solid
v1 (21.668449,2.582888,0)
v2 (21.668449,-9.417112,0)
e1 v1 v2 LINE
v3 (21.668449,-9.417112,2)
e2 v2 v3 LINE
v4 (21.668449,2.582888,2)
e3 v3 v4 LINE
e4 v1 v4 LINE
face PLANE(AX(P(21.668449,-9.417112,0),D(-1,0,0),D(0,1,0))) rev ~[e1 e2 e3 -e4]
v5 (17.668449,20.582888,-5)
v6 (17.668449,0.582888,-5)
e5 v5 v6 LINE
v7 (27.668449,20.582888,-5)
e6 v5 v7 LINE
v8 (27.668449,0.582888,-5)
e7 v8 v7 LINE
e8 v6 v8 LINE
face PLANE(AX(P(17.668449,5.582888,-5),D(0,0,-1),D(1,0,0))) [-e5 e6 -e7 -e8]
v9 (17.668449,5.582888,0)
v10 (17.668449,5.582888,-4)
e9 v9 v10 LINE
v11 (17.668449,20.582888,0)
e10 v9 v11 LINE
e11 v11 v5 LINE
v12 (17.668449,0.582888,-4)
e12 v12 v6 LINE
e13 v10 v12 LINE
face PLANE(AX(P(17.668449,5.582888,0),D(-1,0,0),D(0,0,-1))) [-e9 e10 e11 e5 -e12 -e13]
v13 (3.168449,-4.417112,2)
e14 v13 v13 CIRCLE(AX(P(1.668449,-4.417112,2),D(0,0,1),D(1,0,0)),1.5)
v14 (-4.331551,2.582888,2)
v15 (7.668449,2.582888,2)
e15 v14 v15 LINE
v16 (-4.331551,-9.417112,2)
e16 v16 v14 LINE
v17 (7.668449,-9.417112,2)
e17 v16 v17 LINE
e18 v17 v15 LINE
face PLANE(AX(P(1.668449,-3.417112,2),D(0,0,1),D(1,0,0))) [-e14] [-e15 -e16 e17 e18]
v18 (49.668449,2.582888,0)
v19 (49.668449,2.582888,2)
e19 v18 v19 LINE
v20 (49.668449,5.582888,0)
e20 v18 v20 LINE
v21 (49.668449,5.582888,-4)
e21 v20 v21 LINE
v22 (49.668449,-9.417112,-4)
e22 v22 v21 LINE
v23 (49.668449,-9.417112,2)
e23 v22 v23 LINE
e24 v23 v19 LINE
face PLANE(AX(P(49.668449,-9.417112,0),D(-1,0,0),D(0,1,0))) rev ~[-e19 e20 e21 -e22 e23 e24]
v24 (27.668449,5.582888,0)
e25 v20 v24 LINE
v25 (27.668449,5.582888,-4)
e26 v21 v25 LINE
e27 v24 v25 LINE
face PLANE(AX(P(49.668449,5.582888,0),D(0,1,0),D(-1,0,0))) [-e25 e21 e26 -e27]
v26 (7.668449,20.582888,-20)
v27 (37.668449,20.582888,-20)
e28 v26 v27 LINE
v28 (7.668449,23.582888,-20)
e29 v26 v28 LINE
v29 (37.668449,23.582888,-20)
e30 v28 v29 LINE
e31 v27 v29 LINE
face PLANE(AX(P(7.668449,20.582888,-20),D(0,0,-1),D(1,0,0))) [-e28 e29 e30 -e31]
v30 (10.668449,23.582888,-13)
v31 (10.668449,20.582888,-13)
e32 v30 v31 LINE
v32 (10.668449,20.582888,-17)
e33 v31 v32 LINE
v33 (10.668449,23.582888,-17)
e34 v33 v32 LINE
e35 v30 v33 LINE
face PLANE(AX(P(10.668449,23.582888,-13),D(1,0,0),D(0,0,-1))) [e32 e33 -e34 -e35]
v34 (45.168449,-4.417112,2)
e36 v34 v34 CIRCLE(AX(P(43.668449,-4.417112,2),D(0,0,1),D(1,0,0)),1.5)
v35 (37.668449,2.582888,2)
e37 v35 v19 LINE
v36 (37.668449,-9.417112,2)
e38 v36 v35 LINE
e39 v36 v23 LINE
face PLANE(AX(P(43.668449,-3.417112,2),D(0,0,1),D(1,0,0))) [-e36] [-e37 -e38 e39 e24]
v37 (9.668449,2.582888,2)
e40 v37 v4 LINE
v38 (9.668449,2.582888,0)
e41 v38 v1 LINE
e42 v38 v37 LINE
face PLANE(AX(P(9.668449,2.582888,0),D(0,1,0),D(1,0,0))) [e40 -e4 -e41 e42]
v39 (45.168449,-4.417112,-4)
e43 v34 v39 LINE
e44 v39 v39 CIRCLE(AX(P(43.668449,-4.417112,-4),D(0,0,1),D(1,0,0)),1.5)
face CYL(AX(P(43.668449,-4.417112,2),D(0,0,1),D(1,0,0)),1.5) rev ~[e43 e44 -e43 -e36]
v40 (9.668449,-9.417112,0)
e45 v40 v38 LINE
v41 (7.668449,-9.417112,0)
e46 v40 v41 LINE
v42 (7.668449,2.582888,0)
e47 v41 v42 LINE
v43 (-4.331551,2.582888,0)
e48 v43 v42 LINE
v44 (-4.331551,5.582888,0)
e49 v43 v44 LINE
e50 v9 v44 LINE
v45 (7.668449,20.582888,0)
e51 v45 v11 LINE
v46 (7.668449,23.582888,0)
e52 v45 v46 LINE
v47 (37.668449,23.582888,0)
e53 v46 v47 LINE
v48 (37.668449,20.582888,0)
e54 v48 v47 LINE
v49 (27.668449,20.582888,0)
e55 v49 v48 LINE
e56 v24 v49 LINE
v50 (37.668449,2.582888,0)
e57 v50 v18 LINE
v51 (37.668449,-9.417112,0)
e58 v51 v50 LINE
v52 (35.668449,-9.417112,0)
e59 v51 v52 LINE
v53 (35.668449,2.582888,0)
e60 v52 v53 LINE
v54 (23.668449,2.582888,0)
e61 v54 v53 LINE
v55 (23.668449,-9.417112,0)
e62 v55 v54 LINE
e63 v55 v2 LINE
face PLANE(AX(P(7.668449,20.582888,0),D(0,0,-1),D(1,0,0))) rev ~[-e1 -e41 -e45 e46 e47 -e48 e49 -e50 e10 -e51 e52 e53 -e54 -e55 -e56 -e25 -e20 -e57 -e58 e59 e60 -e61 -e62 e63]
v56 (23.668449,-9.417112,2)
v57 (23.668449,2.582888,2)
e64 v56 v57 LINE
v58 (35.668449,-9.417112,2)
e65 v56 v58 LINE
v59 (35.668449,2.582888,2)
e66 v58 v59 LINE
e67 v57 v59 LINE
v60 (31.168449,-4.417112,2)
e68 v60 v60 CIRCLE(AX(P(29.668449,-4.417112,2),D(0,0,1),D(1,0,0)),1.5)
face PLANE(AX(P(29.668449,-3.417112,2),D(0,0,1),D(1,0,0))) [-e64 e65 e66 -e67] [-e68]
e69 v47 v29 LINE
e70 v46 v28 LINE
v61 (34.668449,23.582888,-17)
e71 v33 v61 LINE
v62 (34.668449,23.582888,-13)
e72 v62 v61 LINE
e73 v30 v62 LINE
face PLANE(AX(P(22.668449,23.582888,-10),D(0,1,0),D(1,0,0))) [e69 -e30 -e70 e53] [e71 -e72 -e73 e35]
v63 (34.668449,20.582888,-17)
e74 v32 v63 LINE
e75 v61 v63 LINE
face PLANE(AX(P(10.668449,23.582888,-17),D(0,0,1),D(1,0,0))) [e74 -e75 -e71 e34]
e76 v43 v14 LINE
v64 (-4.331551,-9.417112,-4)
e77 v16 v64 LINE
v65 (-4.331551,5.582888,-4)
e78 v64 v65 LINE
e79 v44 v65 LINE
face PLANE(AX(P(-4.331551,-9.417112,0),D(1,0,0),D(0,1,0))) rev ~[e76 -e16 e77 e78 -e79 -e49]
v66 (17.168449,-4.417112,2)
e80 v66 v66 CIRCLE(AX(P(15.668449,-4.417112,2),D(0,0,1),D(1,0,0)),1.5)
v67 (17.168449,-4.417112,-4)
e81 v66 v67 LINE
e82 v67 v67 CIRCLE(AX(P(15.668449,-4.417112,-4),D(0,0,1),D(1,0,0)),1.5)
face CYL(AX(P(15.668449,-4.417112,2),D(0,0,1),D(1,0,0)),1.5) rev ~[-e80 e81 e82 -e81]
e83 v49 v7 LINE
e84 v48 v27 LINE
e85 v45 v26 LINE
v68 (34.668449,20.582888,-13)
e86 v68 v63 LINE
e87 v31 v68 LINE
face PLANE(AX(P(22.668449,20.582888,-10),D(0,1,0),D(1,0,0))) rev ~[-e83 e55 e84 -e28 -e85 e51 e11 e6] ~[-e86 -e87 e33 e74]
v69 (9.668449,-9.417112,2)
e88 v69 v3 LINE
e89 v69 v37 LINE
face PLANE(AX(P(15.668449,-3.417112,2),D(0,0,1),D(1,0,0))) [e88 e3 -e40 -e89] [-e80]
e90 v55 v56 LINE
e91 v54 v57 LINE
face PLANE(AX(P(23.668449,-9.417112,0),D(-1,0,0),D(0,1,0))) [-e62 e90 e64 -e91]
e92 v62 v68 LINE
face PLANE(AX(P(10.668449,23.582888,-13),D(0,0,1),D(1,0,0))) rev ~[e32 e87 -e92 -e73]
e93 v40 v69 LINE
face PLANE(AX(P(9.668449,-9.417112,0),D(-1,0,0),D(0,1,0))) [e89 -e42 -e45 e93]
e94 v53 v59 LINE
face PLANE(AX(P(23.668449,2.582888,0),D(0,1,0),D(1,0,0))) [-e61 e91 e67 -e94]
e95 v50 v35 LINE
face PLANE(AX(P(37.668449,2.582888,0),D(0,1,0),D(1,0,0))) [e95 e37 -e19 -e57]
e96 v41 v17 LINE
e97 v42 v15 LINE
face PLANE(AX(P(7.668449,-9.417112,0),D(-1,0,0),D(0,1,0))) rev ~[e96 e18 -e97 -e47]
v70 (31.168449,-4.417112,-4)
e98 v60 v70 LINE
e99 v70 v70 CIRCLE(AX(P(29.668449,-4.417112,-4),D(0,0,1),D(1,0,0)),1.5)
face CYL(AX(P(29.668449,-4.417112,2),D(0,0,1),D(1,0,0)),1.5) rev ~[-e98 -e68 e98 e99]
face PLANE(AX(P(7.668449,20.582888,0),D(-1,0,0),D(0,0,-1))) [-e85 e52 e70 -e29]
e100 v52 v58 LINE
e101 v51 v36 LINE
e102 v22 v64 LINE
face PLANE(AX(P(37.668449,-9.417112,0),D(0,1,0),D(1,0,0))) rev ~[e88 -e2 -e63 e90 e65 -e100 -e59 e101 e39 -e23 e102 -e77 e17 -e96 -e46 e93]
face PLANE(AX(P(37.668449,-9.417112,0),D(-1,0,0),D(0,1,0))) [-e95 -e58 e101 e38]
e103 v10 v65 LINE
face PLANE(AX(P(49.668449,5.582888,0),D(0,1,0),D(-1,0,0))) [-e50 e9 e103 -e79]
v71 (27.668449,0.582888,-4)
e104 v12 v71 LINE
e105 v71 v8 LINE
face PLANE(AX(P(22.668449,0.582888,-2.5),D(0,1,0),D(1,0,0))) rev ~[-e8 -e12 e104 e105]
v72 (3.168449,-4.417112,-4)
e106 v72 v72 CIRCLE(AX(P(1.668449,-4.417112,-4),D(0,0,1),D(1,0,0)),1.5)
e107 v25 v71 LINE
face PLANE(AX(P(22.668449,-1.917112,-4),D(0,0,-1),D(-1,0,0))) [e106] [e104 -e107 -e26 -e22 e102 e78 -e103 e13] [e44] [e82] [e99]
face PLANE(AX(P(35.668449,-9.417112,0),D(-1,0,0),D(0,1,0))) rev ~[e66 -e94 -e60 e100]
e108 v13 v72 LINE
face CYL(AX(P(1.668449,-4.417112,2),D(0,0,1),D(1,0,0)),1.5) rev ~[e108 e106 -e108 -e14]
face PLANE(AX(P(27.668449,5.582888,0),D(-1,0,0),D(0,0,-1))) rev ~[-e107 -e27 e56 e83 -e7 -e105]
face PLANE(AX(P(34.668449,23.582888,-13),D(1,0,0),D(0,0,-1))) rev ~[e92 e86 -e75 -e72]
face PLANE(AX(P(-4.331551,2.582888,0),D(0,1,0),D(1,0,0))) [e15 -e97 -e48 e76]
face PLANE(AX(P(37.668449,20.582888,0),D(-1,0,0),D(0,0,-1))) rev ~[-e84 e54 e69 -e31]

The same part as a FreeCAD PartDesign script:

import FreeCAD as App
import Part
import Sketcher
from FreeCAD import Vector


def add_polygon(sketch, points):
    """Adds a closed chain of lines whose ends are joined by coincident constraints."""
    first, n = sketch.GeometryCount, len(points)
    for a, b in zip(points, points[1:] + points[:1]):
        sketch.addGeometry(Part.LineSegment(App.Vector(*a, 0), App.Vector(*b, 0)), False)
    for i in range(n):
        sketch.addConstraint(Sketcher.Constraint("Coincident", first + i, 2, first + (i + 1) % n, 1))

doc = App.newDocument("Part")
body = doc.addObject("PartDesign::Body", "Body")

# Sketch on XY plane
sketch1 = body.newObject("Sketcher::SketchObject", "Sketch")
sketch1.AttachmentSupport = (doc.getObject("XY_Plane"), [""])
sketch1.MapMode = "FlatFace"
add_polygon(sketch1, [(-4.331551, 2.582888), (-4.331551, -9.417112), (7.668449, -9.417112), (7.668449, 2.582888)])  # lines 0-3
sketch1.addConstraint(Sketcher.Constraint("Vertical", 0))
sketch1.addConstraint(Sketcher.Constraint("Horizontal", 1))
sketch1.addConstraint(Sketcher.Constraint("Vertical", 2))
sketch1.addConstraint(Sketcher.Constraint("Horizontal", 3))
sketch1.addConstraint(Sketcher.Constraint("Equal", 3, 0))
sketch1.addConstraint(Sketcher.Constraint("DistanceX", 1, 1, 1, 2, 12.0))
sketch1.addConstraint(Sketcher.Constraint("DistanceX", 0, 2, -1, 1, 4.331551))
sketch1.addConstraint(Sketcher.Constraint("DistanceY", 0, 2, -1, 1, 9.417112))
pad1 = body.newObject("PartDesign::Pad", "Pad")
pad1.Profile = sketch1
pad1.Length = 2

# Sketch on XY plane
sketch2 = body.newObject("Sketcher::SketchObject", "Sketch001")
sketch2.AttachmentSupport = (doc.getObject("XY_Plane"), [""])
sketch2.MapMode = "FlatFace"
add_polygon(sketch2, [(49.668449, 5.582888), (49.668449, -9.417112), (-4.331551, -9.417112), (-4.331551, 5.582888)])  # lines 0-3
sketch2.addConstraint(Sketcher.Constraint("Vertical", 0))
sketch2.addConstraint(Sketcher.Constraint("Horizontal", 1))
sketch2.addConstraint(Sketcher.Constraint("Vertical", 2))
sketch2.addConstraint(Sketcher.Constraint("Horizontal", 3))
sketch2.addConstraint(Sketcher.Constraint("DistanceX", 1, 2, 1, 1, 54.0))
sketch2.addConstraint(Sketcher.Constraint("DistanceY", 0, 2, 0, 1, 15.0))
sketch2.addConstraint(Sketcher.Constraint("DistanceX", -1, 1, 0, 2, 49.668449))
sketch2.addConstraint(Sketcher.Constraint("DistanceY", 0, 2, -1, 1, 9.417112))
pad2 = body.newObject("PartDesign::Pad", "Pad001")
pad2.Profile = sketch2
pad2.Length = 4
pad2.Reversed = True

# Sketch on XY plane
sketch3 = body.newObject("Sketcher::SketchObject", "Sketch002")
sketch3.AttachmentSupport = (doc.getObject("XY_Plane"), [""])
sketch3.MapMode = "FlatFace"
add_polygon(sketch3, [(9.668449, 2.582888), (9.668449, -9.417112), (21.668449, -9.417112), (21.668449, 2.582888)])  # lines 0-3
add_polygon(sketch3, [(23.668449, 2.582888), (23.668449, -9.417112), (35.668449, -9.417112), (35.668449, 2.582888)])  # lines 4-7
add_polygon(sketch3, [(37.668449, 2.582888), (37.668449, -9.417112), (49.668449, -9.417112), (49.668449, 2.582888)])  # lines 8-11
sketch3.addConstraint(Sketcher.Constraint("Vertical", 0))
sketch3.addConstraint(Sketcher.Constraint("Horizontal", 1))
sketch3.addConstraint(Sketcher.Constraint("Vertical", 2))
sketch3.addConstraint(Sketcher.Constraint("Horizontal", 3))
sketch3.addConstraint(Sketcher.Constraint("Vertical", 4))
sketch3.addConstraint(Sketcher.Constraint("Horizontal", 5))
sketch3.addConstraint(Sketcher.Constraint("Vertical", 6))
sketch3.addConstraint(Sketcher.Constraint("Horizontal", 7))
sketch3.addConstraint(Sketcher.Constraint("Vertical", 8))
sketch3.addConstraint(Sketcher.Constraint("Horizontal", 9))
sketch3.addConstraint(Sketcher.Constraint("Vertical", 10))
sketch3.addConstraint(Sketcher.Constraint("Horizontal", 11))
sketch3.addConstraint(Sketcher.Constraint("Horizontal", 1, 2, 4, 2))
sketch3.addConstraint(Sketcher.Constraint("Horizontal", 3, 2, 6, 2))
sketch3.addConstraint(Sketcher.Constraint("Horizontal", 5, 2, 8, 2))
sketch3.addConstraint(Sketcher.Constraint("Horizontal", 7, 2, 10, 2))
sketch3.addConstraint(Sketcher.Constraint("Equal", 3, 5))
sketch3.addConstraint(Sketcher.Constraint("Equal", 7, 9))
sketch3.addConstraint(Sketcher.Constraint("Equal", 11, 0))
sketch3.addConstraint(Sketcher.Constraint("DistanceX", 1, 1, 1, 2, 12.0))
sketch3.addConstraint(Sketcher.Constraint("DistanceX", 1, 2, 4, 2, 2.0))
sketch3.addConstraint(Sketcher.Constraint("DistanceX", 5, 2, 8, 2, 2.0))
sketch3.addConstraint(Sketcher.Constraint("DistanceX", -1, 1, 0, 2, 9.668449))
sketch3.addConstraint(Sketcher.Constraint("DistanceY", 0, 2, -1, 1, 9.417112))
pad3 = body.newObject("PartDesign::Pad", "Pad002")
pad3.Profile = sketch3
pad3.Length = 2

# Sketch on XY plane
sketch4 = body.newObject("Sketcher::SketchObject", "Sketch003")
sketch4.AttachmentSupport = (doc.getObject("XY_Plane"), [""])
sketch4.MapMode = "FlatFace"
sketch4.AttachmentOffset = App.Placement(Vector(0, 0, 2), App.Rotation())
sketch4.addGeometry(Part.Circle(Vector(1.668449, -4.417112, 0), Vector(0, 0, 1), 1.5), False)
sketch4.addGeometry(Part.Circle(Vector(15.668449, -4.417112, 0), Vector(0, 0, 1), 1.5), False)
sketch4.addGeometry(Part.Circle(Vector(29.668449, -4.417112, 0), Vector(0, 0, 1), 1.5), False)
sketch4.addGeometry(Part.Circle(Vector(43.668449, -4.417112, 0), Vector(0, 0, 1), 1.5), False)
sketch4.addConstraint(Sketcher.Constraint("Equal", 0, 1))
sketch4.addConstraint(Sketcher.Constraint("Equal", 1, 2))
sketch4.addConstraint(Sketcher.Constraint("Equal", 2, 3))
sketch4.addConstraint(Sketcher.Constraint("Horizontal", 0, 3, 1, 3))
sketch4.addConstraint(Sketcher.Constraint("Horizontal", 1, 3, 2, 3))
sketch4.addConstraint(Sketcher.Constraint("Horizontal", 2, 3, 3, 3))
sketch4.addConstraint(Sketcher.Constraint("Diameter", 0, 3.0))
sketch4.addConstraint(Sketcher.Constraint("DistanceX", 0, 3, 1, 3, 14.0))
sketch4.addConstraint(Sketcher.Constraint("DistanceX", 1, 3, 2, 3, 14.0))
sketch4.addConstraint(Sketcher.Constraint("DistanceX", 2, 3, 3, 3, 14.0))
sketch4.addConstraint(Sketcher.Constraint("DistanceX", -1, 1, 0, 3, 1.668449))
sketch4.addConstraint(Sketcher.Constraint("DistanceY", 0, 3, -1, 1, 4.417112))
pocket1 = body.newObject("PartDesign::Pocket", "Pocket")
pocket1.Profile = sketch4
pocket1.Length = 9

# Sketch on XZ plane
sketch5 = body.newObject("Sketcher::SketchObject", "Sketch004")
sketch5.AttachmentSupport = (doc.getObject("XZ_Plane"), [""])
sketch5.MapMode = "FlatFace"
sketch5.AttachmentOffset = App.Placement(Vector(0, 0, -5.582888), App.Rotation())
add_polygon(sketch5, [(17.668449, -5), (17.668449, 0), (27.668449, 0), (27.668449, -5)])  # lines 0-3
sketch5.addConstraint(Sketcher.Constraint("Vertical", 0))
sketch5.addConstraint(Sketcher.Constraint("Horizontal", 1))
sketch5.addConstraint(Sketcher.Constraint("Vertical", 2))
sketch5.addConstraint(Sketcher.Constraint("Horizontal", 3))
sketch5.addConstraint(Sketcher.Constraint("PointOnObject", 0, 2, -1))
sketch5.addConstraint(Sketcher.Constraint("DistanceX", 1, 1, 1, 2, 10.0))
sketch5.addConstraint(Sketcher.Constraint("DistanceY", 0, 1, 0, 2, 5.0))
sketch5.addConstraint(Sketcher.Constraint("DistanceX", -1, 1, 0, 2, 17.668449))
pad4 = body.newObject("PartDesign::Pad", "Pad003")
pad4.Profile = sketch5
pad4.Type = "TwoLengths"
pad4.Length = 15
pad4.Length2 = 5
pad4.Reversed = True

# Sketch on XZ plane
sketch6 = body.newObject("Sketcher::SketchObject", "Sketch005")
sketch6.AttachmentSupport = (doc.getObject("XZ_Plane"), [""])
sketch6.MapMode = "FlatFace"
sketch6.AttachmentOffset = App.Placement(Vector(0, 0, -20.582888), App.Rotation())
add_polygon(sketch6, [(7.668449, -20), (7.668449, 0), (37.668449, 0), (37.668449, -20)])  # lines 0-3
sketch6.addConstraint(Sketcher.Constraint("Vertical", 0))
sketch6.addConstraint(Sketcher.Constraint("Horizontal", 1))
sketch6.addConstraint(Sketcher.Constraint("Vertical", 2))
sketch6.addConstraint(Sketcher.Constraint("Horizontal", 3))
sketch6.addConstraint(Sketcher.Constraint("PointOnObject", 0, 2, -1))
sketch6.addConstraint(Sketcher.Constraint("DistanceX", 1, 1, 1, 2, 30.0))
sketch6.addConstraint(Sketcher.Constraint("DistanceY", 0, 1, 0, 2, 20.0))
sketch6.addConstraint(Sketcher.Constraint("DistanceX", -1, 1, 0, 2, 7.668449))
pad5 = body.newObject("PartDesign::Pad", "Pad004")
pad5.Profile = sketch6
pad5.Length = 3
pad5.Reversed = True

# Sketch on XZ plane
sketch7 = body.newObject("Sketcher::SketchObject", "Sketch006")
sketch7.AttachmentSupport = (doc.getObject("XZ_Plane"), [""])
sketch7.MapMode = "FlatFace"
sketch7.AttachmentOffset = App.Placement(Vector(0, 0, -23.582888), App.Rotation())
add_polygon(sketch7, [(10.668449, -17), (10.668449, -13), (34.668449, -13), (34.668449, -17)])  # lines 0-3
sketch7.addConstraint(Sketcher.Constraint("Vertical", 0))
sketch7.addConstraint(Sketcher.Constraint("Horizontal", 1))
sketch7.addConstraint(Sketcher.Constraint("Vertical", 2))
sketch7.addConstraint(Sketcher.Constraint("Horizontal", 3))
sketch7.addConstraint(Sketcher.Constraint("DistanceX", 1, 1, 1, 2, 24.0))
sketch7.addConstraint(Sketcher.Constraint("DistanceY", 0, 1, 0, 2, 4.0))
sketch7.addConstraint(Sketcher.Constraint("DistanceY", 0, 2, -1, 1, 13.0))
sketch7.addConstraint(Sketcher.Constraint("DistanceX", -1, 1, 0, 2, 10.668449))
pocket2 = body.newObject("PartDesign::Pocket", "Pocket001")
pocket2.Profile = sketch7
pocket2.Length = 3
pocket2.Reversed = True

doc.recompute()
